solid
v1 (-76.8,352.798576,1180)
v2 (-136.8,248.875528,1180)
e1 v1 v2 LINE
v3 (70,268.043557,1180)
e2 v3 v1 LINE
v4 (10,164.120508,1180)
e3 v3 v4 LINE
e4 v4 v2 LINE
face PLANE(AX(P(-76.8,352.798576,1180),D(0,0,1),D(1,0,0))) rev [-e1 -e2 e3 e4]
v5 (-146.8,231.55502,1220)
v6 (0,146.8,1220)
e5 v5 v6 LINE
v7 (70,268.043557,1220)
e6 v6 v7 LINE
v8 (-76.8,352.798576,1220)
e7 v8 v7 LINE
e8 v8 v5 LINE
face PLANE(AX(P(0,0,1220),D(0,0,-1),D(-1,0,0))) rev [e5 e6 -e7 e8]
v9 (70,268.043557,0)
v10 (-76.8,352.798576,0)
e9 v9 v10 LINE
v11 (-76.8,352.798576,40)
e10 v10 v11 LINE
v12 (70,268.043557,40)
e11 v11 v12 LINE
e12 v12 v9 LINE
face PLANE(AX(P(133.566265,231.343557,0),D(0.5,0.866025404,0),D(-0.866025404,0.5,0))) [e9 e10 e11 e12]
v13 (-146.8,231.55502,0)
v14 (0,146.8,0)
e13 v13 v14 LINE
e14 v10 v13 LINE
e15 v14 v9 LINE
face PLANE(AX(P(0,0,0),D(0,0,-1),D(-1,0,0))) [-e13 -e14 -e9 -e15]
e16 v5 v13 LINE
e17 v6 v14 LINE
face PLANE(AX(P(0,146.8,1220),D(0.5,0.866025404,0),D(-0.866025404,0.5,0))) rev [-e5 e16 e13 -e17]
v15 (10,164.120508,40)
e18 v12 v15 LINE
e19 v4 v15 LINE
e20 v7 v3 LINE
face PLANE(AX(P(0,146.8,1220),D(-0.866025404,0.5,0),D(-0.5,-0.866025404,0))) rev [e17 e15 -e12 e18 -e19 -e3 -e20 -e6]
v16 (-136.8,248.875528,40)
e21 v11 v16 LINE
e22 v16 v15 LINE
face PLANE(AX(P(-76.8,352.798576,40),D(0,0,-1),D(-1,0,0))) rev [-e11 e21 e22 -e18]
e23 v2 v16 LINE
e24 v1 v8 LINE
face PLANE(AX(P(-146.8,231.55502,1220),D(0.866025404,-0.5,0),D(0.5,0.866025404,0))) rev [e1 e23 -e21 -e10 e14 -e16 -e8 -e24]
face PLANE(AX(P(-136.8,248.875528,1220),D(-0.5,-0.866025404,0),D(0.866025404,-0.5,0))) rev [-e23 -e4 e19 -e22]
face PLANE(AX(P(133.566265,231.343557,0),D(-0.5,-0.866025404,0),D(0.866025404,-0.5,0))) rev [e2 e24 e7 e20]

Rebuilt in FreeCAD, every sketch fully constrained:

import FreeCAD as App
import Part
import Sketcher

V = App.Vector
Q = App.Units.Quantity


def add_polygon(sketch, points):
    """Adds a closed chain of lines whose ends are joined by coincident constraints."""
    first, n = sketch.GeometryCount, len(points)
    for a, b in zip(points, points[1:] + points[:1]):
        sketch.addGeometry(Part.LineSegment(App.Vector(*a, 0), App.Vector(*b, 0)), False)
    for i in range(n):
        sketch.addConstraint(Sketcher.Constraint("Coincident", first + i, 2, first + (i + 1) % n, 1))

doc = App.newDocument("Part")
params = doc.addObject("Spreadsheet::Sheet", "Params")
for row, (alias, value) in enumerate([
    ("sketch1_length", "20 mm"),
    ("pad1_length", "1220 mm"),
    ("sketch2_height", "40 mm"),
    ("pad2_length", "120 mm"),
], start=1):
    params.set(f"A{row}", alias)
    params.set(f"B{row}", "=" + value)
    params.setAlias(f"B{row}", alias)

body = doc.addObject("PartDesign::Body", "Body")

# Sketch on XY plane
sketch1 = body.newObject("Sketcher::SketchObject", "Sketch")
sketch1.AttachmentSupport = (doc.getObject("XY_Plane"), [""])
sketch1.MapMode = "FlatFace"
add_polygon(sketch1, [(0, 147), (10, 164), (-137, 249), (-147, 232)])  # lines 0-3
sketch1.addConstraint([
    Sketcher.Constraint("PointOnObject", 3, 2, -2),
    Sketcher.Constraint("Perpendicular", 0, 1),
    Sketcher.Constraint("Perpendicular", 1, 2),
    Sketcher.Constraint("Perpendicular", 2, 3),
    Sketcher.Constraint("Angle", 0, Q("60 deg")),
    Sketcher.Constraint("Distance", 0, Q("20 mm")),
    Sketcher.Constraint("DistanceX", 1, 2, -1, 1, Q("136.8 mm")),
    Sketcher.Constraint("DistanceY", -1, 1, 3, 2, Q("146.8 mm")),
])
sketch1.setExpression("Constraints[9]", "Params.sketch1_length")
pad1 = body.newObject("PartDesign::Pad", "Pad")
pad1.Profile = sketch1
pad1.setExpression("Length", "Params.pad1_length")

# Sketch on an angled plane
sketch2 = body.newObject("Sketcher::SketchObject", "Sketch001")
sketch2.Placement = App.Placement(V(73.566265, 127.420508, 0), App.Rotation(V(0.866025404, -0.5, 0), V(0, 0, -1), V(0.5, 0.866025404, 0), "ZXY"))
add_polygon(sketch2, [(-243, -1180), (-243, -1220), (-73, -1220), (-73, -1180)])  # lines 0-3
add_polygon(sketch2, [(-243, 0), (-243, -40), (-73, -40), (-73, 0)])  # lines 4-7
sketch2.addConstraint([
    Sketcher.Constraint("Vertical", 0),
    Sketcher.Constraint("Horizontal", 1),
    Sketcher.Constraint("Vertical", 2),
    Sketcher.Constraint("Horizontal", 3),
    Sketcher.Constraint("Vertical", 4),
    Sketcher.Constraint("Horizontal", 5),
    Sketcher.Constraint("Vertical", 6),
    Sketcher.Constraint("Horizontal", 7),
    Sketcher.Constraint("PointOnObject", 6, 2, -1),
    Sketcher.Constraint("Vertical", 3, 2, 4, 2),
    Sketcher.Constraint("Vertical", 2, 2, 5, 2),
    Sketcher.Constraint("Equal", 2, 4),
    Sketcher.Constraint("DistanceY", 0, 2, 0, 1, Q("40 mm")),
    Sketcher.Constraint("DistanceY", 0, 2, -1, 1, Q("1220.000001 mm")),
    Sketcher.Constraint("DistanceX", 1, 2, -1, 1, Q("73.4 mm")),
    Sketcher.Constraint("DistanceX", 1, 1, 1, 2, Q("169.510039 mm")),
])
sketch2.setExpression("Constraints[20]", "Params.sketch2_height")
pad2 = body.newObject("PartDesign::Pad", "Pad001")
pad2.Profile = sketch2
pad2.setExpression("Length", "Params.pad2_length")

doc.recompute()
